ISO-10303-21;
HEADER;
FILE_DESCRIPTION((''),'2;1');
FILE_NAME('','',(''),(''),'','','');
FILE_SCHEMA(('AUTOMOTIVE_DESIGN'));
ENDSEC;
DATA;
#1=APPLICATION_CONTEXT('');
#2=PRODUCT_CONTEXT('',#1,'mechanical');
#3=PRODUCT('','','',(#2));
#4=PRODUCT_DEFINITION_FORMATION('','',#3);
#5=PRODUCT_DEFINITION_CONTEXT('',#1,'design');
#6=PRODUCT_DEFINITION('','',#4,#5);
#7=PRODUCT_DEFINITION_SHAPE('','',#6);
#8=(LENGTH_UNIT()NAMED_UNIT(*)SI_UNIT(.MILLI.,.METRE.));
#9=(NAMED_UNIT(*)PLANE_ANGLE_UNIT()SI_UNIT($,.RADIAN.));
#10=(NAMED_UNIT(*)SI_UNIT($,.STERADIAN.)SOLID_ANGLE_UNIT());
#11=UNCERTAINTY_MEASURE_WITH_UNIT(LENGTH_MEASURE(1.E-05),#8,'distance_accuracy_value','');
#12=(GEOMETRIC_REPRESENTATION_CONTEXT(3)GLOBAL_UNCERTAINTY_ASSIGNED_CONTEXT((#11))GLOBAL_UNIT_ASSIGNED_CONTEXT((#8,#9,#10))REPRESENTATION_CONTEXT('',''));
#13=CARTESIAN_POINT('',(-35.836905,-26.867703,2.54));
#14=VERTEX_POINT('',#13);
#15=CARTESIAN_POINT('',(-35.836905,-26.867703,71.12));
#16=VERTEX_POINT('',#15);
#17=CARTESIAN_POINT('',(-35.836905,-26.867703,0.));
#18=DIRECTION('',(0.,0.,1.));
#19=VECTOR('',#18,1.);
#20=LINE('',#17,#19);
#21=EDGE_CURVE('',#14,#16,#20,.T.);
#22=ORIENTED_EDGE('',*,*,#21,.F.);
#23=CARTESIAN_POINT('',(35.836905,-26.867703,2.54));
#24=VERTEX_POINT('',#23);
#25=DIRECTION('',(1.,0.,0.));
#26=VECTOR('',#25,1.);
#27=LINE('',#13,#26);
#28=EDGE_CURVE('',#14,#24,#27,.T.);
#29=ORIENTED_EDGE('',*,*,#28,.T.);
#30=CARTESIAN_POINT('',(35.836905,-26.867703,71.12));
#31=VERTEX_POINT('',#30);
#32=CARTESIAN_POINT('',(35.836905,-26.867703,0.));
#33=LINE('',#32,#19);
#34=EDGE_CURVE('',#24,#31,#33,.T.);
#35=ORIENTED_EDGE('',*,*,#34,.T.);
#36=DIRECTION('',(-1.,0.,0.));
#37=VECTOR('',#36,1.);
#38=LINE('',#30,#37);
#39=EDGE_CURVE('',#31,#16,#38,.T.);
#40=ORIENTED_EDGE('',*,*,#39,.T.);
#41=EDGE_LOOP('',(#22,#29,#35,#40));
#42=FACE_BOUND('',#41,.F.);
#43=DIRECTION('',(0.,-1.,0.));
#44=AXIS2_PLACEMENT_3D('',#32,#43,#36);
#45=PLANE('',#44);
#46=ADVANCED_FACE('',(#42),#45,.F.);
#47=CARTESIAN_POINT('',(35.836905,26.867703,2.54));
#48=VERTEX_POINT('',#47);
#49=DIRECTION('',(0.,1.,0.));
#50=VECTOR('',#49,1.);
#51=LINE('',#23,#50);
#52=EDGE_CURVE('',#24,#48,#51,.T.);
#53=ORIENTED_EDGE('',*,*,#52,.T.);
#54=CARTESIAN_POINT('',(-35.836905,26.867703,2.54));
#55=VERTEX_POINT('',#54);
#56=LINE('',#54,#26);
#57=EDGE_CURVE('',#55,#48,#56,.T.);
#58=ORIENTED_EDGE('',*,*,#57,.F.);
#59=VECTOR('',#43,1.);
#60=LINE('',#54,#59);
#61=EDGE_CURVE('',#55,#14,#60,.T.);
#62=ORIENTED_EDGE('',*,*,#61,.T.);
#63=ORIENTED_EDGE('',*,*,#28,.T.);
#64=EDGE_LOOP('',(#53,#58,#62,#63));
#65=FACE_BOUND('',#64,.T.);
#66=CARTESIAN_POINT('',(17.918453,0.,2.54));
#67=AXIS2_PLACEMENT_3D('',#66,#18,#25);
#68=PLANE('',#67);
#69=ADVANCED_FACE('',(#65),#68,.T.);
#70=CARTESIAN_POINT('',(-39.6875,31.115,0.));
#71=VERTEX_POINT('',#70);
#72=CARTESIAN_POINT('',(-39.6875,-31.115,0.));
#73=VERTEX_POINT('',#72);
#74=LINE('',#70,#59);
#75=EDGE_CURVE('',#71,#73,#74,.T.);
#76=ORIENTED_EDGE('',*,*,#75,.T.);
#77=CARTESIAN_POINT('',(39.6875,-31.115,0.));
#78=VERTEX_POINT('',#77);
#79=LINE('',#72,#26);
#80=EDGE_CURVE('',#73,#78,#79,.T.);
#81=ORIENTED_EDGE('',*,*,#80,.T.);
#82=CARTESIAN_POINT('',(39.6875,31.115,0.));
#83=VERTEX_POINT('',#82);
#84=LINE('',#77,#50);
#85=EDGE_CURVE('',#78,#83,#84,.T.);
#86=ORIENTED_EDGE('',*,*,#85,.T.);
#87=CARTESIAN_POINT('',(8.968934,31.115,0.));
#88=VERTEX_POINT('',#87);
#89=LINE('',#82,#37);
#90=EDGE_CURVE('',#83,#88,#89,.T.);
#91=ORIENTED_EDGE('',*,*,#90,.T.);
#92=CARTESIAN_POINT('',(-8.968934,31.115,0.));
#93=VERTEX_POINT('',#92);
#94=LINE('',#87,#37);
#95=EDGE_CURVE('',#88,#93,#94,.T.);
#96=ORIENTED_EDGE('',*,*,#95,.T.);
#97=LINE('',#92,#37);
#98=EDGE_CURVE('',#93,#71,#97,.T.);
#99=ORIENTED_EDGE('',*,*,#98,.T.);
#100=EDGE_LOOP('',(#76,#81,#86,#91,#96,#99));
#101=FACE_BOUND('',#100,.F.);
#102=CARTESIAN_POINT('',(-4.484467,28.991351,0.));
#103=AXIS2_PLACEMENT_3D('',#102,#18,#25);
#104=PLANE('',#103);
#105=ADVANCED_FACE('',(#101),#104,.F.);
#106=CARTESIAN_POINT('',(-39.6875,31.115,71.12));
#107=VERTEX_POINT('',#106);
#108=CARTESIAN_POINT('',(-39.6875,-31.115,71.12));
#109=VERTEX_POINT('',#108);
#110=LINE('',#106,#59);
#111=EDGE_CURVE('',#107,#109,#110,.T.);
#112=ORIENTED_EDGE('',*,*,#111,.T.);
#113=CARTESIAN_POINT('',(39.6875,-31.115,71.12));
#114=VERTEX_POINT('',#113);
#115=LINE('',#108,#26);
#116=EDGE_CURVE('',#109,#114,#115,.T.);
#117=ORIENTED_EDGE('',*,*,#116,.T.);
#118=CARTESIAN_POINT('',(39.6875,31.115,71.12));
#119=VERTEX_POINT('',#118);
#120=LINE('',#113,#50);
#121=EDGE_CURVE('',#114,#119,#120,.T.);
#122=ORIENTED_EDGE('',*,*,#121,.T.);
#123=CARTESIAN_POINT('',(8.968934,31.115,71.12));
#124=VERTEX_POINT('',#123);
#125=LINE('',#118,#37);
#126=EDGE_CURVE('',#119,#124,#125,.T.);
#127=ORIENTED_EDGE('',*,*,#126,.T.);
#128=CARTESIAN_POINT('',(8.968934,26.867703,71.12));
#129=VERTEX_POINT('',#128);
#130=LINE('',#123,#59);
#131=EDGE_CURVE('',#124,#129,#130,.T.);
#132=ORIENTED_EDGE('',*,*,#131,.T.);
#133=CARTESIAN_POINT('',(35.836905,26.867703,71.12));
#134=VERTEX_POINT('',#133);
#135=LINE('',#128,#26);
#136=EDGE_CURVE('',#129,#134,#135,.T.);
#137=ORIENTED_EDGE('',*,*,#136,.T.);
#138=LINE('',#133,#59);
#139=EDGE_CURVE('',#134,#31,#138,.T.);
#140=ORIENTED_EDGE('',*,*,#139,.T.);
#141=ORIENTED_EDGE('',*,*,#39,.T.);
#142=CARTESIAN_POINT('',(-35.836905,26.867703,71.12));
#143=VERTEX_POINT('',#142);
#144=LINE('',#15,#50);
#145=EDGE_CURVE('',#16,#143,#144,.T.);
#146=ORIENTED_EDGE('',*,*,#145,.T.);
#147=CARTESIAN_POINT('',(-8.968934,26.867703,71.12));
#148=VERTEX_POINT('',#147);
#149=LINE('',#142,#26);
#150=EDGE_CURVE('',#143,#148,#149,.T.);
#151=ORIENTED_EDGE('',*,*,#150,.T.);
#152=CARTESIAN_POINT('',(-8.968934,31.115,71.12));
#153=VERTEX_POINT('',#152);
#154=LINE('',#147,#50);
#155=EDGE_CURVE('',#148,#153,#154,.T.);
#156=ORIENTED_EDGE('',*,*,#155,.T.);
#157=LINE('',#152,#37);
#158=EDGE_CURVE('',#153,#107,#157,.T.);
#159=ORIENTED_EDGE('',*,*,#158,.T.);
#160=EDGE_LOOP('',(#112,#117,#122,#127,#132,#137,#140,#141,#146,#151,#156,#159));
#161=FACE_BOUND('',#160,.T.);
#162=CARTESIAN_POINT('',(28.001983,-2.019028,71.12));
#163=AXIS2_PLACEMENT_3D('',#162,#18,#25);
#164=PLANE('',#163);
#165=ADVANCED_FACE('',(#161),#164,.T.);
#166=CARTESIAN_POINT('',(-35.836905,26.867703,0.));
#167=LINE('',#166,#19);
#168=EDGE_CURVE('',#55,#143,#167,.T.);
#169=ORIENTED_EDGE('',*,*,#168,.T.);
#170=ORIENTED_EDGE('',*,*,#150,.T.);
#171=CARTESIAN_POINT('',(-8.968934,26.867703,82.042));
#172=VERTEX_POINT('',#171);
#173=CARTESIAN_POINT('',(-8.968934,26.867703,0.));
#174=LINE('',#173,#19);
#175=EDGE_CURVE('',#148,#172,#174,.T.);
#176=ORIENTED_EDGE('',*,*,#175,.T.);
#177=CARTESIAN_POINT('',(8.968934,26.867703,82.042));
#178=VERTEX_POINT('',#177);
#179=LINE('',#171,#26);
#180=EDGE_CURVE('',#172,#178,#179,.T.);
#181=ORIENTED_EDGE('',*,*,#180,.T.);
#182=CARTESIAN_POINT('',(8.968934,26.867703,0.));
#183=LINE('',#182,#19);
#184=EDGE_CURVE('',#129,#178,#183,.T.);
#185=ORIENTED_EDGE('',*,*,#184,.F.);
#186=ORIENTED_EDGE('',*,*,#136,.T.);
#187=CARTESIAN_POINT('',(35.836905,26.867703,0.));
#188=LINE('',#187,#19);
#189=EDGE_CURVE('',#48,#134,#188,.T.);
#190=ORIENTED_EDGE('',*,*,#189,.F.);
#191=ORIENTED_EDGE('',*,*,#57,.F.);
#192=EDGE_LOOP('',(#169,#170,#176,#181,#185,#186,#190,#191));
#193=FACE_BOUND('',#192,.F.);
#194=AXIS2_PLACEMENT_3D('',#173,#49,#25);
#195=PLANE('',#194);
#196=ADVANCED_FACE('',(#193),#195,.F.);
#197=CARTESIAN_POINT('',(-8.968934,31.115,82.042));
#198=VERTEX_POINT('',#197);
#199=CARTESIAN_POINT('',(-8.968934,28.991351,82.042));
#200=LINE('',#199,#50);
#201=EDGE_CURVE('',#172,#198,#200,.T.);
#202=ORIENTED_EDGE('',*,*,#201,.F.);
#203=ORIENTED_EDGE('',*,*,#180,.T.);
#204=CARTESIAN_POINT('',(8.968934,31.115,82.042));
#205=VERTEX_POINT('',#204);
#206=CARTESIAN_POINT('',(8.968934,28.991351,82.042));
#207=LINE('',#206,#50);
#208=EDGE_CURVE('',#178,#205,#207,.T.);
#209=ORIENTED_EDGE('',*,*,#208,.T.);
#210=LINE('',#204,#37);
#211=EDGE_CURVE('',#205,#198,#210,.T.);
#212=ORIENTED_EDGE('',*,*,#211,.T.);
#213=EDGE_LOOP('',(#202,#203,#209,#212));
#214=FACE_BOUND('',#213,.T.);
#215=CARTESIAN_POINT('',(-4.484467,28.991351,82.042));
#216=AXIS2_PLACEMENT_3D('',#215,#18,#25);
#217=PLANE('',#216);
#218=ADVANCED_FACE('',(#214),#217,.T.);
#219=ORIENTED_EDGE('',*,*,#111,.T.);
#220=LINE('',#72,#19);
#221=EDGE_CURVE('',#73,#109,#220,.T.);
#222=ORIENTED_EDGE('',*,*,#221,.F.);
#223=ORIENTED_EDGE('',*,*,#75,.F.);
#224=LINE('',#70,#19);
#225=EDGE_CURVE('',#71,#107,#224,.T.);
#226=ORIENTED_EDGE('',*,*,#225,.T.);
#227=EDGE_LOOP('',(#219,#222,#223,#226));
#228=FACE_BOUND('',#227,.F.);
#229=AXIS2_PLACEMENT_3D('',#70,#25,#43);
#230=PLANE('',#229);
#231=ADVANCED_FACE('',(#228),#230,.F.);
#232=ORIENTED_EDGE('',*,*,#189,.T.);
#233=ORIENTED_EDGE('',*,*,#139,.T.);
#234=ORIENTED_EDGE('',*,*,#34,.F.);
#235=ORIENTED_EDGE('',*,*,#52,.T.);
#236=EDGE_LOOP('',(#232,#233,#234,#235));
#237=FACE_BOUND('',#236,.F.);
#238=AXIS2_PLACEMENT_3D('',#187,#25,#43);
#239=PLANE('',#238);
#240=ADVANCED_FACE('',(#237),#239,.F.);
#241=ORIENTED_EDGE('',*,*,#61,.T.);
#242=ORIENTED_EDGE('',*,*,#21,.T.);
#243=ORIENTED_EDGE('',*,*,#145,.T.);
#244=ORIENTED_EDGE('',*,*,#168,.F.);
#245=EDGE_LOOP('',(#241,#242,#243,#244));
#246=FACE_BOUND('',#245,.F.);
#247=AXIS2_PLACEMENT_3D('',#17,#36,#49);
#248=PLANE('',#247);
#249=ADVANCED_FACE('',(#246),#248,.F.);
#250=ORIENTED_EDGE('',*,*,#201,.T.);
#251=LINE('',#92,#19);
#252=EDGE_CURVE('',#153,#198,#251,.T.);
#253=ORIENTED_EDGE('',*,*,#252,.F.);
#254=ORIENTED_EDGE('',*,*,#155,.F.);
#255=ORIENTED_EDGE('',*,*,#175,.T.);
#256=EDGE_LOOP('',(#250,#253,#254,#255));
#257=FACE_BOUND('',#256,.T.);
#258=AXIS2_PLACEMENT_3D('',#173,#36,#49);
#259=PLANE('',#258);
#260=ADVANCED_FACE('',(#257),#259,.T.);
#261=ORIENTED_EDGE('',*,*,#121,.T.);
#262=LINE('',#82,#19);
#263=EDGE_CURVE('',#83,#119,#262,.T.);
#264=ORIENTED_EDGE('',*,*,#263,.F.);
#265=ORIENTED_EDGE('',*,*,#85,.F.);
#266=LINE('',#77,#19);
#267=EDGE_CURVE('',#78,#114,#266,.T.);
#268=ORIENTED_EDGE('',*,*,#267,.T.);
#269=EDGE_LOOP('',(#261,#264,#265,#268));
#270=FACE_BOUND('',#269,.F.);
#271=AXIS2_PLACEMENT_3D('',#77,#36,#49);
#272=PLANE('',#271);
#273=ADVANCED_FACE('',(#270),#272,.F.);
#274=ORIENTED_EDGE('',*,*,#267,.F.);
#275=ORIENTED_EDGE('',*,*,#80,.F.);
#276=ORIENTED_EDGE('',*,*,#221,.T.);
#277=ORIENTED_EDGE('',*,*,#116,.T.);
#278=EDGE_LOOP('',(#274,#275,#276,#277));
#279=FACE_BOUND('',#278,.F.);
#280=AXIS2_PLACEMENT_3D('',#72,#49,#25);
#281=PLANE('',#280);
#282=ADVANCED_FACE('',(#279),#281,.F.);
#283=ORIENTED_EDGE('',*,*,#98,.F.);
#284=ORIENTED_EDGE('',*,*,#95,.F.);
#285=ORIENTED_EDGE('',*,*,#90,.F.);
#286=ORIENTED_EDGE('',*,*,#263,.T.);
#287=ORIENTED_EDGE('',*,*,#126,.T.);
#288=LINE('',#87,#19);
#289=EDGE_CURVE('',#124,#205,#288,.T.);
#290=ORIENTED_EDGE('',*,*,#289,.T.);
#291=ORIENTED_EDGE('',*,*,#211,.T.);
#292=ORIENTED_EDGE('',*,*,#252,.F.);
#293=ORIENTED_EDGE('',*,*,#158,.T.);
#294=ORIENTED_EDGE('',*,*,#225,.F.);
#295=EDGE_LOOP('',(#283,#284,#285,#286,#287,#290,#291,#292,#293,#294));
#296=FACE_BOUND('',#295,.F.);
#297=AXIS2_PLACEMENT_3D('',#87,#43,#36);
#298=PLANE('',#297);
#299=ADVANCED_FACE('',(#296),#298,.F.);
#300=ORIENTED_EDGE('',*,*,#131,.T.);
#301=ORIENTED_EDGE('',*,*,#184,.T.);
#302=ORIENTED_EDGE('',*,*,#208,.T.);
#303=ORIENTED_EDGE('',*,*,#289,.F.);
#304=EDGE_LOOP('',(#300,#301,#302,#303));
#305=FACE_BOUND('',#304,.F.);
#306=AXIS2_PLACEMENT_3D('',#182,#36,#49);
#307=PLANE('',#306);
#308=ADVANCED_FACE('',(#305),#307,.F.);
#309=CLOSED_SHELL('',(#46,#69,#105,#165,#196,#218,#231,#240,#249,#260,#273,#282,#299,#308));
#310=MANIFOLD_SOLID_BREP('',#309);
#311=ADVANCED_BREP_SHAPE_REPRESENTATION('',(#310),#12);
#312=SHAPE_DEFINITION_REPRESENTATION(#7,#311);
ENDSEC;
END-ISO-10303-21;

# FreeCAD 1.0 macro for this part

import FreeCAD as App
import Part
import Sketcher
from FreeCAD import Vector
Q = App.Units.Quantity

doc = App.newDocument("Part")
body = doc.addObject("PartDesign::Body", "Body")

sketch1 = body.newObject("Sketcher::SketchObject", "Sketch")
sketch1.AttachmentSupport = (doc.getObject("XY_Plane"), [""])
sketch1.MapMode = "FlatFace"
sketch1.addGeometry([
    Part.LineSegment(Vector(39.7, -31.1, 0), Vector(39.7, 31.1, 0)),
    Part.LineSegment(Vector(39.7, 31.1, 0), Vector(9, 31.1, 0)),
    Part.LineSegment(Vector(9, 31.1, 0), Vector(9, 26.9, 0)),
    Part.LineSegment(Vector(9, 26.9, 0), Vector(35.8, 26.9, 0)),
    Part.LineSegment(Vector(35.8, 26.9, 0), Vector(35.8, -26.9, 0)),
    Part.LineSegment(Vector(35.8, -26.9, 0), Vector(-35.8, -26.9, 0)),
    Part.LineSegment(Vector(-35.8, -26.9, 0), Vector(-35.8, 26.9, 0)),
    Part.LineSegment(Vector(-35.8, 26.9, 0), Vector(-9, 26.9, 0)),
    Part.LineSegment(Vector(-9, 26.9, 0), Vector(-9, 31.1, 0)),
    Part.LineSegment(Vector(-9, 31.1, 0), Vector(-39.7, 31.1, 0)),
    Part.LineSegment(Vector(-39.7, 31.1, 0), Vector(-39.7, -31.1, 0)),
    Part.LineSegment(Vector(-39.7, -31.1, 0), Vector(39.7, -31.1, 0)),
], False)
sketch1.addConstraint([
    Sketcher.Constraint("Coincident", 0, 2, 1, 1),
    Sketcher.Constraint("Coincident", 1, 2, 2, 1),
    Sketcher.Constraint("Coincident", 2, 2, 3, 1),
    Sketcher.Constraint("Coincident", 3, 2, 4, 1),
    Sketcher.Constraint("Coincident", 4, 2, 5, 1),
    Sketcher.Constraint("Coincident", 5, 2, 6, 1),
    Sketcher.Constraint("Coincident", 6, 2, 7, 1),
    Sketcher.Constraint("Coincident", 7, 2, 8, 1),
    Sketcher.Constraint("Coincident", 8, 2, 9, 1),
    Sketcher.Constraint("Coincident", 9, 2, 10, 1),
    Sketcher.Constraint("Coincident", 10, 2, 11, 1),
    Sketcher.Constraint("Coincident", 11, 2, 0, 1),
    Sketcher.Constraint("Vertical", 0),
    Sketcher.Constraint("Horizontal", 1),
    Sketcher.Constraint("Vertical", 2),
    Sketcher.Constraint("Horizontal", 3),
    Sketcher.Constraint("Vertical", 4),
    Sketcher.Constraint("Horizontal", 5),
    Sketcher.Constraint("Vertical", 6),
    Sketcher.Constraint("Horizontal", 7),
    Sketcher.Constraint("Vertical", 8),
    Sketcher.Constraint("Horizontal", 9),
    Sketcher.Constraint("Vertical", 10),
    Sketcher.Constraint("Horizontal", 11),
    Sketcher.Constraint("Symmetric", 3, 2, 5, 2, -1, 1),
    Sketcher.Constraint("Symmetric", 0, 2, 10, 2, -1, 1),
    Sketcher.Constraint("Symmetric", 2, 2, 7, 2, -2),
    Sketcher.Constraint("Horizontal", 1, 2, 8, 2),
    Sketcher.Constraint("DistanceY", 0, 1, 0, 2, Q("2.45 in")),
    Sketcher.Constraint("DistanceX", 11, 1, 11, 2, Q("3.125 in")),
    Sketcher.Constraint("DistanceX", 3, 1, 3, 2, 26.867971),
    Sketcher.Constraint("DistanceX", 5, 2, 5, 1, 71.67381),
    Sketcher.Constraint("DistanceY", 2, 2, 2, 1, 4.247297),
])
pad1 = body.newObject("PartDesign::Pad", "Pad")
pad1.Profile = sketch1
pad1.Length = Q("2.8 in")

sketch2 = body.newObject("Sketcher::SketchObject", "Sketch001")
sketch2.AttachmentSupport = (doc.getObject("XY_Plane"), [""])
sketch2.MapMode = "FlatFace"
sketch2.addGeometry([
    Part.LineSegment(Vector(36, 27, 0), Vector(-36, 27, 0)),
    Part.LineSegment(Vector(-36, 27, 0), Vector(-36, -27, 0)),
    Part.LineSegment(Vector(-36, -27, 0), Vector(36, -27, 0)),
    Part.LineSegment(Vector(36, -27, 0), Vector(36, 27, 0)),
], False)
sketch2.addConstraint([
    Sketcher.Constraint("Coincident", 0, 2, 1, 1),
    Sketcher.Constraint("Coincident", 1, 2, 2, 1),
    Sketcher.Constraint("Coincident", 2, 2, 3, 1),
    Sketcher.Constraint("Coincident", 3, 2, 0, 1),
    Sketcher.Constraint("Horizontal", 0),
    Sketcher.Constraint("Vertical", 1),
    Sketcher.Constraint("Horizontal", 2),
    Sketcher.Constraint("Vertical", 3),
    Sketcher.Constraint("Symmetric", 0, 2, 2, 2, -1, 1),
    Sketcher.Constraint("DistanceX", 0, 2, 0, 1, 71.67381),
    Sketcher.Constraint("DistanceY", 1, 2, 1, 1, 53.735405),
])
pad2 = body.newObject("PartDesign::Pad", "Pad001")
pad2.Profile = sketch2
pad2.Length = Q("0.1 in")

sketch3 = body.newObject("Sketcher::SketchObject", "Sketch002")
sketch3.AttachmentSupport = (doc.getObject("XY_Plane"), [""])
sketch3.MapMode = "FlatFace"
sketch3.addGeometry([
    Part.LineSegment(Vector(-9, 31.1, 0), Vector(-9, 26.9, 0)),
    Part.LineSegment(Vector(-9, 26.9, 0), Vector(9, 26.9, 0)),
    Part.LineSegment(Vector(9, 26.9, 0), Vector(9, 31.1, 0)),
    Part.LineSegment(Vector(9, 31.1, 0), Vector(-9, 31.1, 0)),
], False)
sketch3.addConstraint([
    Sketcher.Constraint("Coincident", 0, 2, 1, 1),
    Sketcher.Constraint("Coincident", 1, 2, 2, 1),
    Sketcher.Constraint("Coincident", 2, 2, 3, 1),
    Sketcher.Constraint("Coincident", 3, 2, 0, 1),
    Sketcher.Constraint("Vertical", 0),
    Sketcher.Constraint("Horizontal", 1),
    Sketcher.Constraint("Vertical", 2),
    Sketcher.Constraint("Horizontal", 3),
    Sketcher.Constraint("DistanceY", -1, 1, 2, 2, Q("1.225 in")),
    Sketcher.Constraint("DistanceX", 1, 1, 1, 2, 17.937869),
    Sketcher.Constraint("DistanceY", 0, 2, 0, 1, 4.247297),
    Sketcher.Constraint("DistanceX", 0, 2, -1, 1, 8.968934),
])
pad3 = body.newObject("PartDesign::Pad", "Pad002")
pad3.Profile = sketch3
pad3.Length = Q("3.23 in")

doc.recompute()
